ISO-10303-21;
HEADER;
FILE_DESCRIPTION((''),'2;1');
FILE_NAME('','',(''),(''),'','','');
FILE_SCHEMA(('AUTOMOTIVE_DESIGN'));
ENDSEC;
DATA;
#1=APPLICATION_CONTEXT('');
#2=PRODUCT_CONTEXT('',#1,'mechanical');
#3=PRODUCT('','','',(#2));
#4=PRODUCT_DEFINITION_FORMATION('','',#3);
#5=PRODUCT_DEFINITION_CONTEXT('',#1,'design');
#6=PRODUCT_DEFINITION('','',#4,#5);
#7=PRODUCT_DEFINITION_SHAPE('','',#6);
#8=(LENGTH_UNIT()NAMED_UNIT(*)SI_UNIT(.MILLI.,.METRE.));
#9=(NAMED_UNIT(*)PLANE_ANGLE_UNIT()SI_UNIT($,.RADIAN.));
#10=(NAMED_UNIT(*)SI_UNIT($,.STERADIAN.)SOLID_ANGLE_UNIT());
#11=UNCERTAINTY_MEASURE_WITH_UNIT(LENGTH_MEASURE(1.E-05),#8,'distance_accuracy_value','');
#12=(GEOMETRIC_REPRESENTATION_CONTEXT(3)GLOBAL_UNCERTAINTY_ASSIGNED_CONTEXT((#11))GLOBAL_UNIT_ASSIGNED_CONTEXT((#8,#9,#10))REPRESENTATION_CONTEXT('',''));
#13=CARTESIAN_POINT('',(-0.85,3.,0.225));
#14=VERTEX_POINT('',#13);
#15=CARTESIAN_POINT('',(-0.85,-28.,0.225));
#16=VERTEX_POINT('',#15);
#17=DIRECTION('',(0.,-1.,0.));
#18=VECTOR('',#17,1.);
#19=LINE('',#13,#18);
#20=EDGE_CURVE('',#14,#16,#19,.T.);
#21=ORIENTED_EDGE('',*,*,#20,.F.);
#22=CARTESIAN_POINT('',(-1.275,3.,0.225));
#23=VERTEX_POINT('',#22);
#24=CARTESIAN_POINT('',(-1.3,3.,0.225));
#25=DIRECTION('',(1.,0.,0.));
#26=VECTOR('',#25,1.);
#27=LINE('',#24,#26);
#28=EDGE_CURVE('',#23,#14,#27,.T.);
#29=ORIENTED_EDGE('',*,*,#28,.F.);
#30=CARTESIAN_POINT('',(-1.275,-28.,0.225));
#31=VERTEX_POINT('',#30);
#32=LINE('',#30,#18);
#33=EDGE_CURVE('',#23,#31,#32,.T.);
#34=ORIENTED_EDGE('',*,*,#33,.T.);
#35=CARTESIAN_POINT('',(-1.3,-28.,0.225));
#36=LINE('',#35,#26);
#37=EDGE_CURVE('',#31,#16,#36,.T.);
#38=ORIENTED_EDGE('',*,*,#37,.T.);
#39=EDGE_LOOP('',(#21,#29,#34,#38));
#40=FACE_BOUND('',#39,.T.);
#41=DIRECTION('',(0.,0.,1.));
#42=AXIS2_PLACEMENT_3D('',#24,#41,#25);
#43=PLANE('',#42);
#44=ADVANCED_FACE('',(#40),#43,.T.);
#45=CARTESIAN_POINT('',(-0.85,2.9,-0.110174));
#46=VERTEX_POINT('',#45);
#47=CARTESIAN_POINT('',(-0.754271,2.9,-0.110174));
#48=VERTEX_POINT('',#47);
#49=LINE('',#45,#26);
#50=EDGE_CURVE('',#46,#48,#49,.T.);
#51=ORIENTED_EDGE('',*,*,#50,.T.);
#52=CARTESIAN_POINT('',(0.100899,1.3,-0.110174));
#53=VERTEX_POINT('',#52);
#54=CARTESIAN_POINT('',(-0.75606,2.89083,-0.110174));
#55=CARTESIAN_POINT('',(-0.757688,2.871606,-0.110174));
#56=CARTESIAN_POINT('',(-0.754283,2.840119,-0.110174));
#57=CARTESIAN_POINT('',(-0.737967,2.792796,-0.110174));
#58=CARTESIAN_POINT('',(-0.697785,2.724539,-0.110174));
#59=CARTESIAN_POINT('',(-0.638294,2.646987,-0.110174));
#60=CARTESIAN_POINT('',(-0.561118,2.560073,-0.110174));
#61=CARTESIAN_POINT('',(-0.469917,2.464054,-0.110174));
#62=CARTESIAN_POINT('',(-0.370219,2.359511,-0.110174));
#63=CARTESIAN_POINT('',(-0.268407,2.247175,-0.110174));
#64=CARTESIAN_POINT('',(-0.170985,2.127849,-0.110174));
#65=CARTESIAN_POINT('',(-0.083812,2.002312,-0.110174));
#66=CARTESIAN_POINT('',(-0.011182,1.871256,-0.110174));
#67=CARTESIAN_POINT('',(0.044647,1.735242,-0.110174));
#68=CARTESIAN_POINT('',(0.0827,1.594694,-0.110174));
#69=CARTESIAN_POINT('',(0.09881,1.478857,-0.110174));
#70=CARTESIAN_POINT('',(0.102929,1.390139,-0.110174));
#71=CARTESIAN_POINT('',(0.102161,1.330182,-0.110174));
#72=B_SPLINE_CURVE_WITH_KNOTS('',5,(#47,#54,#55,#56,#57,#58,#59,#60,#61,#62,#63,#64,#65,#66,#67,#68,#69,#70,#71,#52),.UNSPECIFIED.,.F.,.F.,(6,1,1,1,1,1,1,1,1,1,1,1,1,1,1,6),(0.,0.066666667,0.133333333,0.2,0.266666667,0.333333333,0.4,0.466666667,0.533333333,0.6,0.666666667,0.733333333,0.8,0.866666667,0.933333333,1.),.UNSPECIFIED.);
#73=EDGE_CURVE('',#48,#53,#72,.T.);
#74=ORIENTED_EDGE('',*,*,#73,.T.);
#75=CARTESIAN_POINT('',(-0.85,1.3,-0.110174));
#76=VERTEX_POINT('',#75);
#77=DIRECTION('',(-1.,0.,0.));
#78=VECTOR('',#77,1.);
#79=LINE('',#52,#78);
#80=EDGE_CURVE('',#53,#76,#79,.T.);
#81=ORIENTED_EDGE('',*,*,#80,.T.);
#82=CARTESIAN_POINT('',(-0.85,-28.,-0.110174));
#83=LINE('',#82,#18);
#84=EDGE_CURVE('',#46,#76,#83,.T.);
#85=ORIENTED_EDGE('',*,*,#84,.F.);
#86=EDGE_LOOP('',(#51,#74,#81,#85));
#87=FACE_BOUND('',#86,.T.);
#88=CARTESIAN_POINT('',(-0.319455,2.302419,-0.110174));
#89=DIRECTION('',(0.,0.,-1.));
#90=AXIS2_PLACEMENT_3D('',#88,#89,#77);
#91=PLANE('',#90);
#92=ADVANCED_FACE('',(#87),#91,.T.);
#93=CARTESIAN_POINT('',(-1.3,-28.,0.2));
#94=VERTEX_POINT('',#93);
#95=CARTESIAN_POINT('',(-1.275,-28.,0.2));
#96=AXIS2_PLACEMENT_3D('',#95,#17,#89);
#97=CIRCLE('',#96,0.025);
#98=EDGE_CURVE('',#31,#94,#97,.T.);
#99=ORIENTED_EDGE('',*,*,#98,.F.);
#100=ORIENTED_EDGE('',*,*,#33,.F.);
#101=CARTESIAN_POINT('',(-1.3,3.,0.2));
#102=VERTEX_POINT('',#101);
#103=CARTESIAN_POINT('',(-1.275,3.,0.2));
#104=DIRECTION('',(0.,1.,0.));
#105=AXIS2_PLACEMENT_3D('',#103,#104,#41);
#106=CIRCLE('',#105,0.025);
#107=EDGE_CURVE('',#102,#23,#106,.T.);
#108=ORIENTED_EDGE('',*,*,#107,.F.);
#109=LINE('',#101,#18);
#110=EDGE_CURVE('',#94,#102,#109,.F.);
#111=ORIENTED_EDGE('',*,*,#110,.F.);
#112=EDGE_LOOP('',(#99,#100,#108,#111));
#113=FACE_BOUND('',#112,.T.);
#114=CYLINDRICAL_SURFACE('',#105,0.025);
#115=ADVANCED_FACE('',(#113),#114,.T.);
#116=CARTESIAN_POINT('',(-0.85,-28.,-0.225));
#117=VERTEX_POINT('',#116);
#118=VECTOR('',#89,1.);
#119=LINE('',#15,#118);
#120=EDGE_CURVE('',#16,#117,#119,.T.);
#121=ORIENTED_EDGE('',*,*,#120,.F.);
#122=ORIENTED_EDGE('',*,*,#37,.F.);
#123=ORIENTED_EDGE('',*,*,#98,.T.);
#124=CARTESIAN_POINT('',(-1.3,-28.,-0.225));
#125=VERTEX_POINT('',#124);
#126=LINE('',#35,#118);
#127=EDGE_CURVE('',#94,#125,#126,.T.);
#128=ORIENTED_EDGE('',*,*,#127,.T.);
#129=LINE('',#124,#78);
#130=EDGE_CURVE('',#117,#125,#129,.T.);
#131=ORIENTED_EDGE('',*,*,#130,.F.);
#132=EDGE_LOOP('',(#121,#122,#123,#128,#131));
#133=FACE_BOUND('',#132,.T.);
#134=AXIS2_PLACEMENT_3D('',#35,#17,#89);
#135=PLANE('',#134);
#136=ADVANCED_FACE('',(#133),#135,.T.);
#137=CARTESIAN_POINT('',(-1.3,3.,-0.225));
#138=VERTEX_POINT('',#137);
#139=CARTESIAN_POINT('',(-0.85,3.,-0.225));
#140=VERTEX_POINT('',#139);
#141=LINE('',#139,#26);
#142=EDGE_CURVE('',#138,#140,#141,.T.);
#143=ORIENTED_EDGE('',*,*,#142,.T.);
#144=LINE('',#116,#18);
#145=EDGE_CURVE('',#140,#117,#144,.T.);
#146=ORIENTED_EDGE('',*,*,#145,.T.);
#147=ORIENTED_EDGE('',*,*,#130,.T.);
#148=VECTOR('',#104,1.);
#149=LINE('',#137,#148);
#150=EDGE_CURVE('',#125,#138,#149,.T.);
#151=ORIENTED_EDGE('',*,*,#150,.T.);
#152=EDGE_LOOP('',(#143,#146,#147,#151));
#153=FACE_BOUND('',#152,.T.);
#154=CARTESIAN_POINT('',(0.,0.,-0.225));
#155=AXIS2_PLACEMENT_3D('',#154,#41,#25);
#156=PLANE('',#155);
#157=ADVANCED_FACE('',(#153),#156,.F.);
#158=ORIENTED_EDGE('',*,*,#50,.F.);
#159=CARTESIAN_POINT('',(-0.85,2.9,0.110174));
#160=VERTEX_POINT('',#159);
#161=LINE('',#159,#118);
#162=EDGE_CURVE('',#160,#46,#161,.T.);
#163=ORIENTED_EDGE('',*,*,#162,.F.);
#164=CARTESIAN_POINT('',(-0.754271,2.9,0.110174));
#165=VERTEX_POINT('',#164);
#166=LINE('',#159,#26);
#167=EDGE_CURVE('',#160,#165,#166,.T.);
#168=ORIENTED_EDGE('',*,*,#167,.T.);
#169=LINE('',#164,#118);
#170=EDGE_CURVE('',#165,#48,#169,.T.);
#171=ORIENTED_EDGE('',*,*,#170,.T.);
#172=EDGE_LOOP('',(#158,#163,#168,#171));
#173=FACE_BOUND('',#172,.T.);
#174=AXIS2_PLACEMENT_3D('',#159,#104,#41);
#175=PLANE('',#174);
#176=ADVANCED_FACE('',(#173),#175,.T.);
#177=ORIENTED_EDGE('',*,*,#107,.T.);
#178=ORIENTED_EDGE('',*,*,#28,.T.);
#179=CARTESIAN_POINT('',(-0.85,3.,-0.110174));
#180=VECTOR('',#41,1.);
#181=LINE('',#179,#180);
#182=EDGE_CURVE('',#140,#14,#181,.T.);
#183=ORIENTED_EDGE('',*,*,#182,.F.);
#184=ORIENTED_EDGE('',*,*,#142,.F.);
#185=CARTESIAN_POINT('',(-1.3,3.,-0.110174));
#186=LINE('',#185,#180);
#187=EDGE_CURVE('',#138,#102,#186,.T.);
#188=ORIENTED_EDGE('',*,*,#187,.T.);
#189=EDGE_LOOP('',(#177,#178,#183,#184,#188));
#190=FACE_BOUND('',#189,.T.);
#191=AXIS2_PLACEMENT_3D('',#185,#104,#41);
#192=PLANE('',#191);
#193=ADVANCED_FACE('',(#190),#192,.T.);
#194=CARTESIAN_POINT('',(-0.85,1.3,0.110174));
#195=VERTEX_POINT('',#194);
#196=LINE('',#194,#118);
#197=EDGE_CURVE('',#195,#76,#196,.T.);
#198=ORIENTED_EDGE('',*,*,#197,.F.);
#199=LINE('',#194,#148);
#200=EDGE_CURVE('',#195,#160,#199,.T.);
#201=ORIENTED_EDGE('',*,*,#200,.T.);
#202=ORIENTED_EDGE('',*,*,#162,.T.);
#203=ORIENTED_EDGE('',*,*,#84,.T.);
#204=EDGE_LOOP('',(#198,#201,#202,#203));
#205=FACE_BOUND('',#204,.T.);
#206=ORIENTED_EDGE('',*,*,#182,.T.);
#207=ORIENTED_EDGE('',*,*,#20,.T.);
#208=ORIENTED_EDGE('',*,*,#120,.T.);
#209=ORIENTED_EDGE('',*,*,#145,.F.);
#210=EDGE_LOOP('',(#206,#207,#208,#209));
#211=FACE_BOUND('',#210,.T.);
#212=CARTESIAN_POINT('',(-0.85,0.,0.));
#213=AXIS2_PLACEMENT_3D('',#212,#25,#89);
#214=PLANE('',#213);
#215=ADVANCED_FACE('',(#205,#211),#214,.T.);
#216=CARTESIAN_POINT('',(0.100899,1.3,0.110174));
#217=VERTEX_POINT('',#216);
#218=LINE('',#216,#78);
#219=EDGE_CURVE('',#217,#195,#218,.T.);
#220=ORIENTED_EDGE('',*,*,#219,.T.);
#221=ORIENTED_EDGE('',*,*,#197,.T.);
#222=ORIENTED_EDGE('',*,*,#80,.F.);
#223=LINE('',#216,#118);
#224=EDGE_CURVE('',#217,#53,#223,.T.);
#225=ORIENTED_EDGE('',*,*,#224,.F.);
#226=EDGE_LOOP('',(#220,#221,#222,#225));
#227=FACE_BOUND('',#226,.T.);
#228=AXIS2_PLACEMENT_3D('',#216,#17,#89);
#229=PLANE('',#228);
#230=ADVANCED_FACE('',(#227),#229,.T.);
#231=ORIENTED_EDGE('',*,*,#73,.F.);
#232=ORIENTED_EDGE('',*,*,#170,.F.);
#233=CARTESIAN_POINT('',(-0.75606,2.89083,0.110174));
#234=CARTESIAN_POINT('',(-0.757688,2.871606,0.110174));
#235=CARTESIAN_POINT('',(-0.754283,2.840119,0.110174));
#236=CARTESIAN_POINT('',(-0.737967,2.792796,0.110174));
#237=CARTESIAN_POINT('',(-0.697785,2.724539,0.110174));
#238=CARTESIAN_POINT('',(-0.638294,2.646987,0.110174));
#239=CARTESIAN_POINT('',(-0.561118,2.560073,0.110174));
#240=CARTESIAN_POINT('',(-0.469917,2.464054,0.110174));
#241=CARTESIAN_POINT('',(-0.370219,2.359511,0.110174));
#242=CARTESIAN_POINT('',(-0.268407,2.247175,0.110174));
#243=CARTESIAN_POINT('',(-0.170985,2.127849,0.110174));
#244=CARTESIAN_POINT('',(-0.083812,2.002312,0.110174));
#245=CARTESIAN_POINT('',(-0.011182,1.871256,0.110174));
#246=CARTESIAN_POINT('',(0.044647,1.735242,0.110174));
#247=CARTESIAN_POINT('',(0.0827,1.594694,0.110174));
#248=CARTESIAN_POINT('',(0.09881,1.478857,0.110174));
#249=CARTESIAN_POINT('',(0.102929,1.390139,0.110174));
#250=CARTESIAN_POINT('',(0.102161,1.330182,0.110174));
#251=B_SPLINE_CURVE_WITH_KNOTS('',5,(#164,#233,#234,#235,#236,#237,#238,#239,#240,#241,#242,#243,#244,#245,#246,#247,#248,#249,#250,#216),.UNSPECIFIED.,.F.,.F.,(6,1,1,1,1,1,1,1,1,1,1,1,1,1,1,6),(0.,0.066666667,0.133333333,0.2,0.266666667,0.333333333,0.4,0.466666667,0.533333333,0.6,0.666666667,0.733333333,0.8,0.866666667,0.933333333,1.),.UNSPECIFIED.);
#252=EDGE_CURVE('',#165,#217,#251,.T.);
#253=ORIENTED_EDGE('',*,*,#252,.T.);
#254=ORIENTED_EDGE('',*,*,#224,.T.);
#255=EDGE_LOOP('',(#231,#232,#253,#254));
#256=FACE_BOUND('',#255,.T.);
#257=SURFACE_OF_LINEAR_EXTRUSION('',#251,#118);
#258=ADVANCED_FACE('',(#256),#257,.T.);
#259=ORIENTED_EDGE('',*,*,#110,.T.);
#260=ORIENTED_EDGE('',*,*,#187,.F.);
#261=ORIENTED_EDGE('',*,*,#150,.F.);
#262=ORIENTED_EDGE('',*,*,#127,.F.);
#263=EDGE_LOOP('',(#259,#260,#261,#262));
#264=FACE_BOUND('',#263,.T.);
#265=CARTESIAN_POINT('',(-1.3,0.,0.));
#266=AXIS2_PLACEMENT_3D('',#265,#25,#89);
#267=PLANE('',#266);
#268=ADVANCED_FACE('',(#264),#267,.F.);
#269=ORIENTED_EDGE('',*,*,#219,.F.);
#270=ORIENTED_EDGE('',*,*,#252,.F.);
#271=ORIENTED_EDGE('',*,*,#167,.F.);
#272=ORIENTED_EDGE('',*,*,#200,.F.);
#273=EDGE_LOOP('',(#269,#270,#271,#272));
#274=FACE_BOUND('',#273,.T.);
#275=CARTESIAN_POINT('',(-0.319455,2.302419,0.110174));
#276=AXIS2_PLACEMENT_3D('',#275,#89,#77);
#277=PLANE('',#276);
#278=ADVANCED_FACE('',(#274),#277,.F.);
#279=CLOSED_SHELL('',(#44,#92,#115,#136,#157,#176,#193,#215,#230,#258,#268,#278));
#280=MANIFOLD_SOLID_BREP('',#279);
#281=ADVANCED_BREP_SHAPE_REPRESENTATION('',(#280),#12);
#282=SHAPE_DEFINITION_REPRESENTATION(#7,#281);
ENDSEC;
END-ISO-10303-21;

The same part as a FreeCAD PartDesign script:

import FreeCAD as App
import Part
import Sketcher


def edges_at(feature, points):
    """Names of the edges that pass closest to the given points."""
    edges = feature.Shape.Edges
    near = lambda p: min(range(len(edges)), key=lambda i: edges[i].distToShape(Part.Vertex(*p))[0])
    return sorted({f"Edge{near(p) + 1}" for p in points})


def add_polygon(sketch, points):
    """Adds a closed chain of lines whose ends are joined by coincident constraints."""
    first, n = sketch.GeometryCount, len(points)
    for a, b in zip(points, points[1:] + points[:1]):
        sketch.addGeometry(Part.LineSegment(App.Vector(*a, 0), App.Vector(*b, 0)), False)
    for i in range(n):
        sketch.addConstraint(Sketcher.Constraint("Coincident", first + i, 2, first + (i + 1) % n, 1))

doc = App.newDocument("Part")
body = doc.addObject("PartDesign::Body", "Body")

sketch1 = body.newObject("Sketcher::SketchObject", "Sketch")
sketch1.AttachmentSupport = (doc.getObject("XY_Plane"), [""])
sketch1.MapMode = "FlatFace"
sketch1.AttachmentOffset = App.Placement(App.Vector(0, 0, -0.110174), App.Rotation())
sketch1.addGeometry(Part.LineSegment(App.Vector(0.100899, 1.3, 0), App.Vector(-0.85, 1.3, 0)), False)
sketch1.addGeometry(Part.LineSegment(App.Vector(-0.85, 1.3, 0), App.Vector(-0.85, 2.9, 0)), False)
sketch1.addGeometry(Part.LineSegment(App.Vector(-0.85, 2.9, 0), App.Vector(-0.754271, 2.9, 0)), False)
sketch1.addGeometry(Part.BSplineCurve([App.Vector(-0.754271, 2.9, 0), App.Vector(-0.75606, 2.89083, 0), App.Vector(-0.757688, 2.871606, 0), App.Vector(-0.754283, 2.840119, 0), App.Vector(-0.737967, 2.792796, 0), App.Vector(-0.697785, 2.724539, 0), App.Vector(-0.638294, 2.646987, 0), App.Vector(-0.561118, 2.560073, 0), App.Vector(-0.469917, 2.464054, 0), App.Vector(-0.370219, 2.359511, 0), App.Vector(-0.268407, 2.247175, 0), App.Vector(-0.170985, 2.127849, 0), App.Vector(-0.083812, 2.002312, 0), App.Vector(-0.011182, 1.871256, 0), App.Vector(0.044647, 1.735242, 0), App.Vector(0.0827, 1.594694, 0), App.Vector(0.09881, 1.478857, 0), App.Vector(0.102929, 1.390139, 0), App.Vector(0.102161, 1.330182, 0), App.Vector(0.100899, 1.3, 0)], [6, 1, 1, 1, 1, 1, 1, 1, 1, 1, 1, 1, 1, 1, 1, 6], [0, 0.066666667, 0.133333333, 0.2, 0.266666667, 0.333333333, 0.4, 0.466666667, 0.533333333, 0.6, 0.666666667, 0.733333333, 0.8, 0.866666667, 0.933333333, 1], False, 5, [1, 1, 1, 1, 1, 1, 1, 1, 1, 1, 1, 1, 1, 1, 1, 1, 1, 1, 1, 1], False), False)
sketch1.addConstraint(Sketcher.Constraint("Block", 3))
sketch1.addConstraint(Sketcher.Constraint("Coincident", 0, 2, 1, 1))
sketch1.addConstraint(Sketcher.Constraint("Coincident", 1, 2, 2, 1))
sketch1.addConstraint(Sketcher.Constraint("Coincident", 2, 2, 3, 1))
sketch1.addConstraint(Sketcher.Constraint("Coincident", 3, 2, 0, 1))
sketch1.addConstraint(Sketcher.Constraint("Horizontal", 0))
sketch1.addConstraint(Sketcher.Constraint("Vertical", 1))
sketch1.addConstraint(Sketcher.Constraint("Horizontal", 2))
sketch1.addConstraint(Sketcher.Constraint("DistanceX", 0, 2, -1, 1, 0.85))
pad1 = body.newObject("PartDesign::Pad", "Pad")
pad1.Profile = sketch1
pad1.Length = 0.220347

sketch2 = body.newObject("Sketcher::SketchObject", "Sketch001")
sketch2.AttachmentSupport = (doc.getObject("YZ_Plane"), [""])
sketch2.MapMode = "FlatFace"
sketch2.AttachmentOffset = App.Placement(App.Vector(0, 0, -0.85), App.Rotation())
add_polygon(sketch2, [(3, 0.22), (-28, 0.22), (-28, -0.11), (3, -0.11)])
sketch2.addConstraint(Sketcher.Constraint("Horizontal", 0))
sketch2.addConstraint(Sketcher.Constraint("Vertical", 1))
sketch2.addConstraint(Sketcher.Constraint("Horizontal", 2))
sketch2.addConstraint(Sketcher.Constraint("Vertical", 3))
sketch2.addConstraint(Sketcher.Constraint("DistanceX", 0, 2, 0, 1, 31.0))
sketch2.addConstraint(Sketcher.Constraint("DistanceX", 0, 2, -1, 1, 28.0))
sketch2.addConstraint(Sketcher.Constraint("DistanceY", -1, 1, 0, 2, 0.225))
sketch2.addConstraint(Sketcher.Constraint("DistanceY", 1, 2, 1, 1, 0.335174))
pad2 = body.newObject("PartDesign::Pad", "Pad001")
pad2.Profile = sketch2
pad2.Length = 0.45
pad2.Reversed = True

sketch3 = body.newObject("Sketcher::SketchObject", "Sketch002")
sketch3.AttachmentSupport = (doc.getObject("XY_Plane"), [""])
sketch3.MapMode = "FlatFace"
sketch3.AttachmentOffset = App.Placement(App.Vector(0, 0, -0.110174), App.Rotation())
add_polygon(sketch3, [(-0.85, 3), (-0.85, -28), (-1.3, -28), (-1.3, 3)])
sketch3.addConstraint(Sketcher.Constraint("Vertical", 0))
sketch3.addConstraint(Sketcher.Constraint("Horizontal", 1))
sketch3.addConstraint(Sketcher.Constraint("Vertical", 2))
sketch3.addConstraint(Sketcher.Constraint("Horizontal", 3))
sketch3.addConstraint(Sketcher.Constraint("DistanceY", 0, 2, 0, 1, 31.0))
sketch3.addConstraint(Sketcher.Constraint("DistanceY", 0, 2, -1, 1, 28.0))
sketch3.addConstraint(Sketcher.Constraint("DistanceX", 1, 2, 1, 1, 0.45))
sketch3.addConstraint(Sketcher.Constraint("DistanceX", 1, 2, -1, 1, 1.3))
pad3 = body.newObject("PartDesign::Pad", "Pad002")
pad3.Profile = sketch3
pad3.Length = 0.114826
pad3.Reversed = True
doc.recompute()

fillet = body.newObject("PartDesign::Fillet", "Fillet")
fillet.Base = (pad3, edges_at(pad3, [(-1.3, -12.5, 0.225)]))
fillet.Radius = 0.025

doc.recompute()
